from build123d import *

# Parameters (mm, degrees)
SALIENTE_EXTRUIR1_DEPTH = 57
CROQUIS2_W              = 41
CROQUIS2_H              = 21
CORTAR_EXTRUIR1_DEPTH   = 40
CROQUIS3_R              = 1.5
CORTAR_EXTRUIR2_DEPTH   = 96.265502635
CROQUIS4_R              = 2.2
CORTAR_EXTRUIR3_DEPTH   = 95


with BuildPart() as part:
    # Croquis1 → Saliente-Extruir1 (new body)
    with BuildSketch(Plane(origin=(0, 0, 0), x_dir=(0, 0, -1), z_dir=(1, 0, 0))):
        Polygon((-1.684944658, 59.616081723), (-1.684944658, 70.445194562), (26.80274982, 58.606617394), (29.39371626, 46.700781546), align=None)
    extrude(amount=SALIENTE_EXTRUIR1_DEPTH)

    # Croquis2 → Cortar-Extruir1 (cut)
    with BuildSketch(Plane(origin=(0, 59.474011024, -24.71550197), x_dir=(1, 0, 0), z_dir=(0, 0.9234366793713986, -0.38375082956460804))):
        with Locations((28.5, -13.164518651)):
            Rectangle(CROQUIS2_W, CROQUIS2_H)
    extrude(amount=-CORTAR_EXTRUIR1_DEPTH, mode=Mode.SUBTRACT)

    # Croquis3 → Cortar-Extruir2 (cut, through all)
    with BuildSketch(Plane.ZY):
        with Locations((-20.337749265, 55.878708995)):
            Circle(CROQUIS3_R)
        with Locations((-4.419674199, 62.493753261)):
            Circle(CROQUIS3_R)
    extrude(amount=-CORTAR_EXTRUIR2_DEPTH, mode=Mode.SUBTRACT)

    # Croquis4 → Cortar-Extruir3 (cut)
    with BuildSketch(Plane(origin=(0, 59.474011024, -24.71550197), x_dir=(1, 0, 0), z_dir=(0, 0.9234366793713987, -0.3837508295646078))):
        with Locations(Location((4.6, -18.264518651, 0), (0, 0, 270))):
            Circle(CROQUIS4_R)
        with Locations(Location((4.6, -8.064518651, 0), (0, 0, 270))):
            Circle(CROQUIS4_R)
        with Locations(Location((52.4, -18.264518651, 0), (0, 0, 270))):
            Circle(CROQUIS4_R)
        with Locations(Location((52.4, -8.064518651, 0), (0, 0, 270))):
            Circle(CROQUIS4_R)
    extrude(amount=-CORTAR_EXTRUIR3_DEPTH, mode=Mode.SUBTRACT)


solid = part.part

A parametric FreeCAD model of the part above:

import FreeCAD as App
import Part
import Sketcher
from FreeCAD import Vector
Q = App.Units.Quantity


def add_polygon(sketch, points):
    """Adds a closed chain of lines whose ends are joined by coincident constraints."""
    first, n = sketch.GeometryCount, len(points)
    for a, b in zip(points, points[1:] + points[:1]):
        sketch.addGeometry(Part.LineSegment(App.Vector(*a, 0), App.Vector(*b, 0)), False)
    for i in range(n):
        sketch.addConstraint(Sketcher.Constraint("Coincident", first + i, 2, first + (i + 1) % n, 1))

doc = App.newDocument("Part")
body = doc.addObject("PartDesign::Body", "Body")

# Sketch on YZ plane
sketch1 = body.newObject("Sketcher::SketchObject", "Sketch")
sketch1.AttachmentSupport = (doc.getObject("YZ_Plane"), [""])
sketch1.MapMode = "FlatFace"
add_polygon(sketch1, [(70, 2), (60, 2), (47, -29), (59, -27)])  # lines 0-3
sketch1.addConstraint([
    Sketcher.Constraint("Horizontal", 0),
    Sketcher.Constraint("Parallel", 1, 3),
    Sketcher.Constraint("Distance", 2, Q("12.1845 mm")),
    Sketcher.Constraint("DistanceX", 1, 2, 0, 2, Q("12.9153 mm")),
    Sketcher.Constraint("DistanceX", 0, 2, 0, 1, Q("10.829113 mm")),
    Sketcher.Constraint("DistanceX", -1, 1, 0, 2, Q("59.616082 mm")),
    Sketcher.Constraint("DistanceY", 2, 2, -1, 1, Q("26.80275 mm")),
    Sketcher.Constraint("DistanceY", 1, 2, 0, 2, Q("31.078661 mm")),
])
pad1 = body.newObject("PartDesign::Pad", "Pad")
pad1.Profile = sketch1
pad1.Length = 57

# Sketch on an angled plane
sketch2 = body.newObject("Sketcher::SketchObject", "Sketch001")
sketch2.Placement = App.Placement(Vector(0, 59.474011, -24.715502), App.Rotation(Vector(1, 0, 0), Vector(0, -0.38375083, -0.923436679), Vector(0, 0.923436679, -0.38375083), "ZXY"))
add_polygon(sketch2, [(8, -3), (8, -24), (49, -24), (49, -3)])  # lines 0-3
sketch2.addConstraint([
    Sketcher.Constraint("Vertical", 0),
    Sketcher.Constraint("Horizontal", 1),
    Sketcher.Constraint("Vertical", 2),
    Sketcher.Constraint("Horizontal", 3),
    Sketcher.Constraint("DistanceX", 1, 1, 1, 2, Q("41 mm")),
    Sketcher.Constraint("DistanceY", 0, 2, 0, 1, Q("21 mm")),
    Sketcher.Constraint("DistanceX", -1, 1, 0, 2, Q("8 mm")),
    Sketcher.Constraint("DistanceY", 0, 2, -1, 1, Q("23.664519 mm")),
])
pocket1 = body.newObject("PartDesign::Pocket", "Pocket")
pocket1.Profile = sketch2
pocket1.Length = 40

# Sketch on YZ plane
sketch3 = body.newObject("Sketcher::SketchObject", "Sketch002")
sketch3.AttachmentSupport = (doc.getObject("YZ_Plane"), [""])
sketch3.MapMode = "FlatFace"
sketch3.addGeometry([
    Part.Circle(Vector(55.9, -20.3, 0), Vector(0, 0, 1), 1.5),
    Part.Circle(Vector(62.5, -4.4, 0), Vector(0, 0, 1), 1.5),
], False)
sketch3.addConstraint([
    Sketcher.Constraint("Equal", 0, 1),
    Sketcher.Constraint("Diameter", 0, Q("3 mm")),
    Sketcher.Constraint("DistanceX", -1, 1, 0, 3, Q("55.878709 mm")),
    Sketcher.Constraint("DistanceY", 0, 3, -1, 1, Q("20.337749 mm")),
    Sketcher.Constraint("DistanceX", -1, 1, 1, 3, Q("62.493753 mm")),
    Sketcher.Constraint("DistanceY", 1, 3, -1, 1, Q("4.419674 mm")),
])
pocket2 = body.newObject("PartDesign::Pocket", "Pocket001")
pocket2.Profile = sketch3
pocket2.Type = "ThroughAll"
pocket2.Reversed = True

# Sketch on an angled plane
sketch4 = body.newObject("Sketcher::SketchObject", "Sketch003")
sketch4.Placement = App.Placement(Vector(0, 59.474011, -24.715502), App.Rotation(Vector(1, 0, 0), Vector(0, -0.38375083, -0.923436679), Vector(0, 0.923436679, -0.38375083), "ZXY"))
sketch4.addGeometry([
    Part.Circle(Vector(4.6, -18.3, 0), Vector(0, 0, 1), 2.2),
    Part.Circle(Vector(4.6, -8.1, 0), Vector(0, 0, 1), 2.2),
    Part.Circle(Vector(52.4, -18.3, 0), Vector(0, 0, 1), 2.2),
    Part.Circle(Vector(52.4, -8.1, 0), Vector(0, 0, 1), 2.2),
], False)
sketch4.addConstraint([
    Sketcher.Constraint("Equal", 0, 1),
    Sketcher.Constraint("Equal", 1, 2),
    Sketcher.Constraint("Equal", 2, 3),
    Sketcher.Constraint("Horizontal", 0, 3, 2, 3),
    Sketcher.Constraint("Horizontal", 1, 3, 3, 3),
    Sketcher.Constraint("Vertical", 0, 3, 1, 3),
    Sketcher.Constraint("Vertical", 2, 3, 3, 3),
    Sketcher.Constraint("Diameter", 0, Q("4.4 mm")),
    Sketcher.Constraint("DistanceX", -1, 1, 0, 3, Q("4.6 mm")),
    Sketcher.Constraint("DistanceX", -1, 1, 2, 3, Q("52.4 mm")),
    Sketcher.Constraint("DistanceY", 0, 3, 1, 3, Q("10.2 mm")),
    Sketcher.Constraint("DistanceY", 0, 3, -1, 1, Q("18.264519 mm")),
])
pocket3 = body.newObject("PartDesign::Pocket", "Pocket002")
pocket3.Profile = sketch4
pocket3.Length = 95

doc.recompute()
